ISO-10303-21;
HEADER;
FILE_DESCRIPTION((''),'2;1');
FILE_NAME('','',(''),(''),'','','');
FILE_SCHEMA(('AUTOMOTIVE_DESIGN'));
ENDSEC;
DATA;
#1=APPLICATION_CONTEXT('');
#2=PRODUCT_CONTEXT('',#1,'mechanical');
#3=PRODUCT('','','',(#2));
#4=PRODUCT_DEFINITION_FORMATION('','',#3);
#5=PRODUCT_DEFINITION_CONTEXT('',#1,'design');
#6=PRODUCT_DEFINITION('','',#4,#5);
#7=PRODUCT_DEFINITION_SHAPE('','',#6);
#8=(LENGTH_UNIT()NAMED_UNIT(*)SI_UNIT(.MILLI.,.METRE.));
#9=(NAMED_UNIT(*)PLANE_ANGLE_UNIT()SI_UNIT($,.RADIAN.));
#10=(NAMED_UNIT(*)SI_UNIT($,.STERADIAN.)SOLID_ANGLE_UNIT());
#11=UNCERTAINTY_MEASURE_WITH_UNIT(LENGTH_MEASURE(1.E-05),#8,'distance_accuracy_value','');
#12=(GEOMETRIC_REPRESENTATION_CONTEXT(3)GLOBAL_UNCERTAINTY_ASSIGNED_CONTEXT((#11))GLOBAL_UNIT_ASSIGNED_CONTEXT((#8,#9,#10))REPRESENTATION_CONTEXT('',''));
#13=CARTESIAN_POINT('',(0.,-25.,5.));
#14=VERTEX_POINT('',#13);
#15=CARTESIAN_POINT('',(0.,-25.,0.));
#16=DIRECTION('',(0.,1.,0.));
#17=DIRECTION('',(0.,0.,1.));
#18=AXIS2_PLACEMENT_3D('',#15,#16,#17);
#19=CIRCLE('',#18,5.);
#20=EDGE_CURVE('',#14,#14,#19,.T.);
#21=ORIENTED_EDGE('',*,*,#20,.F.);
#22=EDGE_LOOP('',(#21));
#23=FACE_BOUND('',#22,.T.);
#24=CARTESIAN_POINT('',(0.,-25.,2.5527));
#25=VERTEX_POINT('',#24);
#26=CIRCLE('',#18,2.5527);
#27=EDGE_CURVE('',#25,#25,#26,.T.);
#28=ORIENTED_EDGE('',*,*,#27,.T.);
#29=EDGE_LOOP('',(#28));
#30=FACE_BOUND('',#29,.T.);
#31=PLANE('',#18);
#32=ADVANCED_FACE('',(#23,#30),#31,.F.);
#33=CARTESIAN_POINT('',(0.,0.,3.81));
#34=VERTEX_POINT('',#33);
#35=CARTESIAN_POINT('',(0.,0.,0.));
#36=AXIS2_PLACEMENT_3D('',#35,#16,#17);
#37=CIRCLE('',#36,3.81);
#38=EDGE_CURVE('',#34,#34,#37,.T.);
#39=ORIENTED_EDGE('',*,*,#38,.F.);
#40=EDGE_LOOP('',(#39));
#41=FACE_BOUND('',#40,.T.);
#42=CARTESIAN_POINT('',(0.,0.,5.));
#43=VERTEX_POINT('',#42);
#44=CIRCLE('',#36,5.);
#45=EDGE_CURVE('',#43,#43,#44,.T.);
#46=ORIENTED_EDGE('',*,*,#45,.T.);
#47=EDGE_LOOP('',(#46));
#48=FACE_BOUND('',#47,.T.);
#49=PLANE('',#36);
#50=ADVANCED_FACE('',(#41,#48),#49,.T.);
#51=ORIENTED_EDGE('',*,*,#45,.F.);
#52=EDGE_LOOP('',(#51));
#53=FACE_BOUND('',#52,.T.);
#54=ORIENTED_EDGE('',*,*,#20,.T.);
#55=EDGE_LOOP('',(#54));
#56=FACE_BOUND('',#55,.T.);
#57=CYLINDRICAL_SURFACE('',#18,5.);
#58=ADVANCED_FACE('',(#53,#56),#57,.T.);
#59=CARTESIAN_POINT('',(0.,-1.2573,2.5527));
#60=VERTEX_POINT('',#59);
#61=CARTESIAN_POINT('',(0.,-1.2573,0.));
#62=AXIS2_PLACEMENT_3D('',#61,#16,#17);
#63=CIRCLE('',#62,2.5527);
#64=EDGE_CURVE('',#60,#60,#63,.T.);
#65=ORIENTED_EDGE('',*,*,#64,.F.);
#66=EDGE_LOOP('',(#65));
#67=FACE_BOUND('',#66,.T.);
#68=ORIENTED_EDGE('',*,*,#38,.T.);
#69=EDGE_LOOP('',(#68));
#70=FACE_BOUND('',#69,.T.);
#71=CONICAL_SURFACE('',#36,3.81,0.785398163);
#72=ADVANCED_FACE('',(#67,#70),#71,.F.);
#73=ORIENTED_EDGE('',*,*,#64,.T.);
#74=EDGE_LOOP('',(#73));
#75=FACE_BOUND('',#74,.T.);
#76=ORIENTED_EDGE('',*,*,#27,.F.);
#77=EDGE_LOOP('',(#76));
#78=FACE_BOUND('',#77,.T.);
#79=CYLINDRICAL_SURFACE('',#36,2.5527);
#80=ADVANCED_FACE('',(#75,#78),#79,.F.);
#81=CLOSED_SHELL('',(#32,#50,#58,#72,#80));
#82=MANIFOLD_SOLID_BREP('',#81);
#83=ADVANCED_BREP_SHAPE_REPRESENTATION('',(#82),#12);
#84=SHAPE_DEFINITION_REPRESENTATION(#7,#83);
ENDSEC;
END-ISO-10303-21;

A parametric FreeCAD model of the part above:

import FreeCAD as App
import Part
import Sketcher

V = App.Vector

doc = App.newDocument("Part")
params = doc.addObject("Spreadsheet::Sheet", "Params")
for row, (alias, value) in enumerate([
    ("sketch1_diameter", "10 mm"),
    ("pad1_length", "25 mm"),
    ("hole_diameter", "5.1054 mm"),
    ("hole_csink_diameter", "7.62 mm"),
], start=1):
    params.set(f"A{row}", alias)
    params.set(f"B{row}", "=" + value)
    params.setAlias(f"B{row}", alias)

body = doc.addObject("PartDesign::Body", "Body")

sketch1 = body.newObject("Sketcher::SketchObject", "Sketch")
sketch1.AttachmentSupport = (doc.getObject("XZ_Plane"), [""])
sketch1.MapMode = "FlatFace"
sketch1.addGeometry(Part.Circle(V(0, 0, 0), V(0, 0, 1), 5), False)
sketch1.addConstraint(Sketcher.Constraint("Coincident", 0, 3, -1, 1))
sketch1.addConstraint(Sketcher.Constraint("Diameter", 0, 10.0))
sketch1.setExpression("Constraints[1]", "Params.sketch1_diameter")
pad1 = body.newObject("PartDesign::Pad", "Pad")
pad1.Profile = sketch1
pad1.setExpression("Length", "Params.pad1_length")

sketch2 = body.newObject("Sketcher::SketchObject", "Sketch001")
sketch2.AttachmentSupport = (doc.getObject("XZ_Plane"), [""])
sketch2.MapMode = "FlatFace"
sketch2.addGeometry(Part.Circle(V(0, 0, 0), V(0, 0, 1), 2.6), False)
sketch2.addConstraint(Sketcher.Constraint("Coincident", 0, 3, -1, 1))
sketch2.addConstraint(Sketcher.Constraint("Diameter", 0, 5.1054))
doc.recompute()
hole = body.newObject("PartDesign::Hole", "Hole")
hole.Profile = sketch2
hole.ThreadType = "None"
hole.setExpression("Diameter", "Params.hole_diameter")
hole.DepthType = "ThroughAll"
hole.HoleCutType = "Countersink"
hole.setExpression("HoleCutDiameter", "Params.hole_csink_diameter")
hole.HoleCutCountersinkAngle = 90
hole.Reversed = True

doc.recompute()
